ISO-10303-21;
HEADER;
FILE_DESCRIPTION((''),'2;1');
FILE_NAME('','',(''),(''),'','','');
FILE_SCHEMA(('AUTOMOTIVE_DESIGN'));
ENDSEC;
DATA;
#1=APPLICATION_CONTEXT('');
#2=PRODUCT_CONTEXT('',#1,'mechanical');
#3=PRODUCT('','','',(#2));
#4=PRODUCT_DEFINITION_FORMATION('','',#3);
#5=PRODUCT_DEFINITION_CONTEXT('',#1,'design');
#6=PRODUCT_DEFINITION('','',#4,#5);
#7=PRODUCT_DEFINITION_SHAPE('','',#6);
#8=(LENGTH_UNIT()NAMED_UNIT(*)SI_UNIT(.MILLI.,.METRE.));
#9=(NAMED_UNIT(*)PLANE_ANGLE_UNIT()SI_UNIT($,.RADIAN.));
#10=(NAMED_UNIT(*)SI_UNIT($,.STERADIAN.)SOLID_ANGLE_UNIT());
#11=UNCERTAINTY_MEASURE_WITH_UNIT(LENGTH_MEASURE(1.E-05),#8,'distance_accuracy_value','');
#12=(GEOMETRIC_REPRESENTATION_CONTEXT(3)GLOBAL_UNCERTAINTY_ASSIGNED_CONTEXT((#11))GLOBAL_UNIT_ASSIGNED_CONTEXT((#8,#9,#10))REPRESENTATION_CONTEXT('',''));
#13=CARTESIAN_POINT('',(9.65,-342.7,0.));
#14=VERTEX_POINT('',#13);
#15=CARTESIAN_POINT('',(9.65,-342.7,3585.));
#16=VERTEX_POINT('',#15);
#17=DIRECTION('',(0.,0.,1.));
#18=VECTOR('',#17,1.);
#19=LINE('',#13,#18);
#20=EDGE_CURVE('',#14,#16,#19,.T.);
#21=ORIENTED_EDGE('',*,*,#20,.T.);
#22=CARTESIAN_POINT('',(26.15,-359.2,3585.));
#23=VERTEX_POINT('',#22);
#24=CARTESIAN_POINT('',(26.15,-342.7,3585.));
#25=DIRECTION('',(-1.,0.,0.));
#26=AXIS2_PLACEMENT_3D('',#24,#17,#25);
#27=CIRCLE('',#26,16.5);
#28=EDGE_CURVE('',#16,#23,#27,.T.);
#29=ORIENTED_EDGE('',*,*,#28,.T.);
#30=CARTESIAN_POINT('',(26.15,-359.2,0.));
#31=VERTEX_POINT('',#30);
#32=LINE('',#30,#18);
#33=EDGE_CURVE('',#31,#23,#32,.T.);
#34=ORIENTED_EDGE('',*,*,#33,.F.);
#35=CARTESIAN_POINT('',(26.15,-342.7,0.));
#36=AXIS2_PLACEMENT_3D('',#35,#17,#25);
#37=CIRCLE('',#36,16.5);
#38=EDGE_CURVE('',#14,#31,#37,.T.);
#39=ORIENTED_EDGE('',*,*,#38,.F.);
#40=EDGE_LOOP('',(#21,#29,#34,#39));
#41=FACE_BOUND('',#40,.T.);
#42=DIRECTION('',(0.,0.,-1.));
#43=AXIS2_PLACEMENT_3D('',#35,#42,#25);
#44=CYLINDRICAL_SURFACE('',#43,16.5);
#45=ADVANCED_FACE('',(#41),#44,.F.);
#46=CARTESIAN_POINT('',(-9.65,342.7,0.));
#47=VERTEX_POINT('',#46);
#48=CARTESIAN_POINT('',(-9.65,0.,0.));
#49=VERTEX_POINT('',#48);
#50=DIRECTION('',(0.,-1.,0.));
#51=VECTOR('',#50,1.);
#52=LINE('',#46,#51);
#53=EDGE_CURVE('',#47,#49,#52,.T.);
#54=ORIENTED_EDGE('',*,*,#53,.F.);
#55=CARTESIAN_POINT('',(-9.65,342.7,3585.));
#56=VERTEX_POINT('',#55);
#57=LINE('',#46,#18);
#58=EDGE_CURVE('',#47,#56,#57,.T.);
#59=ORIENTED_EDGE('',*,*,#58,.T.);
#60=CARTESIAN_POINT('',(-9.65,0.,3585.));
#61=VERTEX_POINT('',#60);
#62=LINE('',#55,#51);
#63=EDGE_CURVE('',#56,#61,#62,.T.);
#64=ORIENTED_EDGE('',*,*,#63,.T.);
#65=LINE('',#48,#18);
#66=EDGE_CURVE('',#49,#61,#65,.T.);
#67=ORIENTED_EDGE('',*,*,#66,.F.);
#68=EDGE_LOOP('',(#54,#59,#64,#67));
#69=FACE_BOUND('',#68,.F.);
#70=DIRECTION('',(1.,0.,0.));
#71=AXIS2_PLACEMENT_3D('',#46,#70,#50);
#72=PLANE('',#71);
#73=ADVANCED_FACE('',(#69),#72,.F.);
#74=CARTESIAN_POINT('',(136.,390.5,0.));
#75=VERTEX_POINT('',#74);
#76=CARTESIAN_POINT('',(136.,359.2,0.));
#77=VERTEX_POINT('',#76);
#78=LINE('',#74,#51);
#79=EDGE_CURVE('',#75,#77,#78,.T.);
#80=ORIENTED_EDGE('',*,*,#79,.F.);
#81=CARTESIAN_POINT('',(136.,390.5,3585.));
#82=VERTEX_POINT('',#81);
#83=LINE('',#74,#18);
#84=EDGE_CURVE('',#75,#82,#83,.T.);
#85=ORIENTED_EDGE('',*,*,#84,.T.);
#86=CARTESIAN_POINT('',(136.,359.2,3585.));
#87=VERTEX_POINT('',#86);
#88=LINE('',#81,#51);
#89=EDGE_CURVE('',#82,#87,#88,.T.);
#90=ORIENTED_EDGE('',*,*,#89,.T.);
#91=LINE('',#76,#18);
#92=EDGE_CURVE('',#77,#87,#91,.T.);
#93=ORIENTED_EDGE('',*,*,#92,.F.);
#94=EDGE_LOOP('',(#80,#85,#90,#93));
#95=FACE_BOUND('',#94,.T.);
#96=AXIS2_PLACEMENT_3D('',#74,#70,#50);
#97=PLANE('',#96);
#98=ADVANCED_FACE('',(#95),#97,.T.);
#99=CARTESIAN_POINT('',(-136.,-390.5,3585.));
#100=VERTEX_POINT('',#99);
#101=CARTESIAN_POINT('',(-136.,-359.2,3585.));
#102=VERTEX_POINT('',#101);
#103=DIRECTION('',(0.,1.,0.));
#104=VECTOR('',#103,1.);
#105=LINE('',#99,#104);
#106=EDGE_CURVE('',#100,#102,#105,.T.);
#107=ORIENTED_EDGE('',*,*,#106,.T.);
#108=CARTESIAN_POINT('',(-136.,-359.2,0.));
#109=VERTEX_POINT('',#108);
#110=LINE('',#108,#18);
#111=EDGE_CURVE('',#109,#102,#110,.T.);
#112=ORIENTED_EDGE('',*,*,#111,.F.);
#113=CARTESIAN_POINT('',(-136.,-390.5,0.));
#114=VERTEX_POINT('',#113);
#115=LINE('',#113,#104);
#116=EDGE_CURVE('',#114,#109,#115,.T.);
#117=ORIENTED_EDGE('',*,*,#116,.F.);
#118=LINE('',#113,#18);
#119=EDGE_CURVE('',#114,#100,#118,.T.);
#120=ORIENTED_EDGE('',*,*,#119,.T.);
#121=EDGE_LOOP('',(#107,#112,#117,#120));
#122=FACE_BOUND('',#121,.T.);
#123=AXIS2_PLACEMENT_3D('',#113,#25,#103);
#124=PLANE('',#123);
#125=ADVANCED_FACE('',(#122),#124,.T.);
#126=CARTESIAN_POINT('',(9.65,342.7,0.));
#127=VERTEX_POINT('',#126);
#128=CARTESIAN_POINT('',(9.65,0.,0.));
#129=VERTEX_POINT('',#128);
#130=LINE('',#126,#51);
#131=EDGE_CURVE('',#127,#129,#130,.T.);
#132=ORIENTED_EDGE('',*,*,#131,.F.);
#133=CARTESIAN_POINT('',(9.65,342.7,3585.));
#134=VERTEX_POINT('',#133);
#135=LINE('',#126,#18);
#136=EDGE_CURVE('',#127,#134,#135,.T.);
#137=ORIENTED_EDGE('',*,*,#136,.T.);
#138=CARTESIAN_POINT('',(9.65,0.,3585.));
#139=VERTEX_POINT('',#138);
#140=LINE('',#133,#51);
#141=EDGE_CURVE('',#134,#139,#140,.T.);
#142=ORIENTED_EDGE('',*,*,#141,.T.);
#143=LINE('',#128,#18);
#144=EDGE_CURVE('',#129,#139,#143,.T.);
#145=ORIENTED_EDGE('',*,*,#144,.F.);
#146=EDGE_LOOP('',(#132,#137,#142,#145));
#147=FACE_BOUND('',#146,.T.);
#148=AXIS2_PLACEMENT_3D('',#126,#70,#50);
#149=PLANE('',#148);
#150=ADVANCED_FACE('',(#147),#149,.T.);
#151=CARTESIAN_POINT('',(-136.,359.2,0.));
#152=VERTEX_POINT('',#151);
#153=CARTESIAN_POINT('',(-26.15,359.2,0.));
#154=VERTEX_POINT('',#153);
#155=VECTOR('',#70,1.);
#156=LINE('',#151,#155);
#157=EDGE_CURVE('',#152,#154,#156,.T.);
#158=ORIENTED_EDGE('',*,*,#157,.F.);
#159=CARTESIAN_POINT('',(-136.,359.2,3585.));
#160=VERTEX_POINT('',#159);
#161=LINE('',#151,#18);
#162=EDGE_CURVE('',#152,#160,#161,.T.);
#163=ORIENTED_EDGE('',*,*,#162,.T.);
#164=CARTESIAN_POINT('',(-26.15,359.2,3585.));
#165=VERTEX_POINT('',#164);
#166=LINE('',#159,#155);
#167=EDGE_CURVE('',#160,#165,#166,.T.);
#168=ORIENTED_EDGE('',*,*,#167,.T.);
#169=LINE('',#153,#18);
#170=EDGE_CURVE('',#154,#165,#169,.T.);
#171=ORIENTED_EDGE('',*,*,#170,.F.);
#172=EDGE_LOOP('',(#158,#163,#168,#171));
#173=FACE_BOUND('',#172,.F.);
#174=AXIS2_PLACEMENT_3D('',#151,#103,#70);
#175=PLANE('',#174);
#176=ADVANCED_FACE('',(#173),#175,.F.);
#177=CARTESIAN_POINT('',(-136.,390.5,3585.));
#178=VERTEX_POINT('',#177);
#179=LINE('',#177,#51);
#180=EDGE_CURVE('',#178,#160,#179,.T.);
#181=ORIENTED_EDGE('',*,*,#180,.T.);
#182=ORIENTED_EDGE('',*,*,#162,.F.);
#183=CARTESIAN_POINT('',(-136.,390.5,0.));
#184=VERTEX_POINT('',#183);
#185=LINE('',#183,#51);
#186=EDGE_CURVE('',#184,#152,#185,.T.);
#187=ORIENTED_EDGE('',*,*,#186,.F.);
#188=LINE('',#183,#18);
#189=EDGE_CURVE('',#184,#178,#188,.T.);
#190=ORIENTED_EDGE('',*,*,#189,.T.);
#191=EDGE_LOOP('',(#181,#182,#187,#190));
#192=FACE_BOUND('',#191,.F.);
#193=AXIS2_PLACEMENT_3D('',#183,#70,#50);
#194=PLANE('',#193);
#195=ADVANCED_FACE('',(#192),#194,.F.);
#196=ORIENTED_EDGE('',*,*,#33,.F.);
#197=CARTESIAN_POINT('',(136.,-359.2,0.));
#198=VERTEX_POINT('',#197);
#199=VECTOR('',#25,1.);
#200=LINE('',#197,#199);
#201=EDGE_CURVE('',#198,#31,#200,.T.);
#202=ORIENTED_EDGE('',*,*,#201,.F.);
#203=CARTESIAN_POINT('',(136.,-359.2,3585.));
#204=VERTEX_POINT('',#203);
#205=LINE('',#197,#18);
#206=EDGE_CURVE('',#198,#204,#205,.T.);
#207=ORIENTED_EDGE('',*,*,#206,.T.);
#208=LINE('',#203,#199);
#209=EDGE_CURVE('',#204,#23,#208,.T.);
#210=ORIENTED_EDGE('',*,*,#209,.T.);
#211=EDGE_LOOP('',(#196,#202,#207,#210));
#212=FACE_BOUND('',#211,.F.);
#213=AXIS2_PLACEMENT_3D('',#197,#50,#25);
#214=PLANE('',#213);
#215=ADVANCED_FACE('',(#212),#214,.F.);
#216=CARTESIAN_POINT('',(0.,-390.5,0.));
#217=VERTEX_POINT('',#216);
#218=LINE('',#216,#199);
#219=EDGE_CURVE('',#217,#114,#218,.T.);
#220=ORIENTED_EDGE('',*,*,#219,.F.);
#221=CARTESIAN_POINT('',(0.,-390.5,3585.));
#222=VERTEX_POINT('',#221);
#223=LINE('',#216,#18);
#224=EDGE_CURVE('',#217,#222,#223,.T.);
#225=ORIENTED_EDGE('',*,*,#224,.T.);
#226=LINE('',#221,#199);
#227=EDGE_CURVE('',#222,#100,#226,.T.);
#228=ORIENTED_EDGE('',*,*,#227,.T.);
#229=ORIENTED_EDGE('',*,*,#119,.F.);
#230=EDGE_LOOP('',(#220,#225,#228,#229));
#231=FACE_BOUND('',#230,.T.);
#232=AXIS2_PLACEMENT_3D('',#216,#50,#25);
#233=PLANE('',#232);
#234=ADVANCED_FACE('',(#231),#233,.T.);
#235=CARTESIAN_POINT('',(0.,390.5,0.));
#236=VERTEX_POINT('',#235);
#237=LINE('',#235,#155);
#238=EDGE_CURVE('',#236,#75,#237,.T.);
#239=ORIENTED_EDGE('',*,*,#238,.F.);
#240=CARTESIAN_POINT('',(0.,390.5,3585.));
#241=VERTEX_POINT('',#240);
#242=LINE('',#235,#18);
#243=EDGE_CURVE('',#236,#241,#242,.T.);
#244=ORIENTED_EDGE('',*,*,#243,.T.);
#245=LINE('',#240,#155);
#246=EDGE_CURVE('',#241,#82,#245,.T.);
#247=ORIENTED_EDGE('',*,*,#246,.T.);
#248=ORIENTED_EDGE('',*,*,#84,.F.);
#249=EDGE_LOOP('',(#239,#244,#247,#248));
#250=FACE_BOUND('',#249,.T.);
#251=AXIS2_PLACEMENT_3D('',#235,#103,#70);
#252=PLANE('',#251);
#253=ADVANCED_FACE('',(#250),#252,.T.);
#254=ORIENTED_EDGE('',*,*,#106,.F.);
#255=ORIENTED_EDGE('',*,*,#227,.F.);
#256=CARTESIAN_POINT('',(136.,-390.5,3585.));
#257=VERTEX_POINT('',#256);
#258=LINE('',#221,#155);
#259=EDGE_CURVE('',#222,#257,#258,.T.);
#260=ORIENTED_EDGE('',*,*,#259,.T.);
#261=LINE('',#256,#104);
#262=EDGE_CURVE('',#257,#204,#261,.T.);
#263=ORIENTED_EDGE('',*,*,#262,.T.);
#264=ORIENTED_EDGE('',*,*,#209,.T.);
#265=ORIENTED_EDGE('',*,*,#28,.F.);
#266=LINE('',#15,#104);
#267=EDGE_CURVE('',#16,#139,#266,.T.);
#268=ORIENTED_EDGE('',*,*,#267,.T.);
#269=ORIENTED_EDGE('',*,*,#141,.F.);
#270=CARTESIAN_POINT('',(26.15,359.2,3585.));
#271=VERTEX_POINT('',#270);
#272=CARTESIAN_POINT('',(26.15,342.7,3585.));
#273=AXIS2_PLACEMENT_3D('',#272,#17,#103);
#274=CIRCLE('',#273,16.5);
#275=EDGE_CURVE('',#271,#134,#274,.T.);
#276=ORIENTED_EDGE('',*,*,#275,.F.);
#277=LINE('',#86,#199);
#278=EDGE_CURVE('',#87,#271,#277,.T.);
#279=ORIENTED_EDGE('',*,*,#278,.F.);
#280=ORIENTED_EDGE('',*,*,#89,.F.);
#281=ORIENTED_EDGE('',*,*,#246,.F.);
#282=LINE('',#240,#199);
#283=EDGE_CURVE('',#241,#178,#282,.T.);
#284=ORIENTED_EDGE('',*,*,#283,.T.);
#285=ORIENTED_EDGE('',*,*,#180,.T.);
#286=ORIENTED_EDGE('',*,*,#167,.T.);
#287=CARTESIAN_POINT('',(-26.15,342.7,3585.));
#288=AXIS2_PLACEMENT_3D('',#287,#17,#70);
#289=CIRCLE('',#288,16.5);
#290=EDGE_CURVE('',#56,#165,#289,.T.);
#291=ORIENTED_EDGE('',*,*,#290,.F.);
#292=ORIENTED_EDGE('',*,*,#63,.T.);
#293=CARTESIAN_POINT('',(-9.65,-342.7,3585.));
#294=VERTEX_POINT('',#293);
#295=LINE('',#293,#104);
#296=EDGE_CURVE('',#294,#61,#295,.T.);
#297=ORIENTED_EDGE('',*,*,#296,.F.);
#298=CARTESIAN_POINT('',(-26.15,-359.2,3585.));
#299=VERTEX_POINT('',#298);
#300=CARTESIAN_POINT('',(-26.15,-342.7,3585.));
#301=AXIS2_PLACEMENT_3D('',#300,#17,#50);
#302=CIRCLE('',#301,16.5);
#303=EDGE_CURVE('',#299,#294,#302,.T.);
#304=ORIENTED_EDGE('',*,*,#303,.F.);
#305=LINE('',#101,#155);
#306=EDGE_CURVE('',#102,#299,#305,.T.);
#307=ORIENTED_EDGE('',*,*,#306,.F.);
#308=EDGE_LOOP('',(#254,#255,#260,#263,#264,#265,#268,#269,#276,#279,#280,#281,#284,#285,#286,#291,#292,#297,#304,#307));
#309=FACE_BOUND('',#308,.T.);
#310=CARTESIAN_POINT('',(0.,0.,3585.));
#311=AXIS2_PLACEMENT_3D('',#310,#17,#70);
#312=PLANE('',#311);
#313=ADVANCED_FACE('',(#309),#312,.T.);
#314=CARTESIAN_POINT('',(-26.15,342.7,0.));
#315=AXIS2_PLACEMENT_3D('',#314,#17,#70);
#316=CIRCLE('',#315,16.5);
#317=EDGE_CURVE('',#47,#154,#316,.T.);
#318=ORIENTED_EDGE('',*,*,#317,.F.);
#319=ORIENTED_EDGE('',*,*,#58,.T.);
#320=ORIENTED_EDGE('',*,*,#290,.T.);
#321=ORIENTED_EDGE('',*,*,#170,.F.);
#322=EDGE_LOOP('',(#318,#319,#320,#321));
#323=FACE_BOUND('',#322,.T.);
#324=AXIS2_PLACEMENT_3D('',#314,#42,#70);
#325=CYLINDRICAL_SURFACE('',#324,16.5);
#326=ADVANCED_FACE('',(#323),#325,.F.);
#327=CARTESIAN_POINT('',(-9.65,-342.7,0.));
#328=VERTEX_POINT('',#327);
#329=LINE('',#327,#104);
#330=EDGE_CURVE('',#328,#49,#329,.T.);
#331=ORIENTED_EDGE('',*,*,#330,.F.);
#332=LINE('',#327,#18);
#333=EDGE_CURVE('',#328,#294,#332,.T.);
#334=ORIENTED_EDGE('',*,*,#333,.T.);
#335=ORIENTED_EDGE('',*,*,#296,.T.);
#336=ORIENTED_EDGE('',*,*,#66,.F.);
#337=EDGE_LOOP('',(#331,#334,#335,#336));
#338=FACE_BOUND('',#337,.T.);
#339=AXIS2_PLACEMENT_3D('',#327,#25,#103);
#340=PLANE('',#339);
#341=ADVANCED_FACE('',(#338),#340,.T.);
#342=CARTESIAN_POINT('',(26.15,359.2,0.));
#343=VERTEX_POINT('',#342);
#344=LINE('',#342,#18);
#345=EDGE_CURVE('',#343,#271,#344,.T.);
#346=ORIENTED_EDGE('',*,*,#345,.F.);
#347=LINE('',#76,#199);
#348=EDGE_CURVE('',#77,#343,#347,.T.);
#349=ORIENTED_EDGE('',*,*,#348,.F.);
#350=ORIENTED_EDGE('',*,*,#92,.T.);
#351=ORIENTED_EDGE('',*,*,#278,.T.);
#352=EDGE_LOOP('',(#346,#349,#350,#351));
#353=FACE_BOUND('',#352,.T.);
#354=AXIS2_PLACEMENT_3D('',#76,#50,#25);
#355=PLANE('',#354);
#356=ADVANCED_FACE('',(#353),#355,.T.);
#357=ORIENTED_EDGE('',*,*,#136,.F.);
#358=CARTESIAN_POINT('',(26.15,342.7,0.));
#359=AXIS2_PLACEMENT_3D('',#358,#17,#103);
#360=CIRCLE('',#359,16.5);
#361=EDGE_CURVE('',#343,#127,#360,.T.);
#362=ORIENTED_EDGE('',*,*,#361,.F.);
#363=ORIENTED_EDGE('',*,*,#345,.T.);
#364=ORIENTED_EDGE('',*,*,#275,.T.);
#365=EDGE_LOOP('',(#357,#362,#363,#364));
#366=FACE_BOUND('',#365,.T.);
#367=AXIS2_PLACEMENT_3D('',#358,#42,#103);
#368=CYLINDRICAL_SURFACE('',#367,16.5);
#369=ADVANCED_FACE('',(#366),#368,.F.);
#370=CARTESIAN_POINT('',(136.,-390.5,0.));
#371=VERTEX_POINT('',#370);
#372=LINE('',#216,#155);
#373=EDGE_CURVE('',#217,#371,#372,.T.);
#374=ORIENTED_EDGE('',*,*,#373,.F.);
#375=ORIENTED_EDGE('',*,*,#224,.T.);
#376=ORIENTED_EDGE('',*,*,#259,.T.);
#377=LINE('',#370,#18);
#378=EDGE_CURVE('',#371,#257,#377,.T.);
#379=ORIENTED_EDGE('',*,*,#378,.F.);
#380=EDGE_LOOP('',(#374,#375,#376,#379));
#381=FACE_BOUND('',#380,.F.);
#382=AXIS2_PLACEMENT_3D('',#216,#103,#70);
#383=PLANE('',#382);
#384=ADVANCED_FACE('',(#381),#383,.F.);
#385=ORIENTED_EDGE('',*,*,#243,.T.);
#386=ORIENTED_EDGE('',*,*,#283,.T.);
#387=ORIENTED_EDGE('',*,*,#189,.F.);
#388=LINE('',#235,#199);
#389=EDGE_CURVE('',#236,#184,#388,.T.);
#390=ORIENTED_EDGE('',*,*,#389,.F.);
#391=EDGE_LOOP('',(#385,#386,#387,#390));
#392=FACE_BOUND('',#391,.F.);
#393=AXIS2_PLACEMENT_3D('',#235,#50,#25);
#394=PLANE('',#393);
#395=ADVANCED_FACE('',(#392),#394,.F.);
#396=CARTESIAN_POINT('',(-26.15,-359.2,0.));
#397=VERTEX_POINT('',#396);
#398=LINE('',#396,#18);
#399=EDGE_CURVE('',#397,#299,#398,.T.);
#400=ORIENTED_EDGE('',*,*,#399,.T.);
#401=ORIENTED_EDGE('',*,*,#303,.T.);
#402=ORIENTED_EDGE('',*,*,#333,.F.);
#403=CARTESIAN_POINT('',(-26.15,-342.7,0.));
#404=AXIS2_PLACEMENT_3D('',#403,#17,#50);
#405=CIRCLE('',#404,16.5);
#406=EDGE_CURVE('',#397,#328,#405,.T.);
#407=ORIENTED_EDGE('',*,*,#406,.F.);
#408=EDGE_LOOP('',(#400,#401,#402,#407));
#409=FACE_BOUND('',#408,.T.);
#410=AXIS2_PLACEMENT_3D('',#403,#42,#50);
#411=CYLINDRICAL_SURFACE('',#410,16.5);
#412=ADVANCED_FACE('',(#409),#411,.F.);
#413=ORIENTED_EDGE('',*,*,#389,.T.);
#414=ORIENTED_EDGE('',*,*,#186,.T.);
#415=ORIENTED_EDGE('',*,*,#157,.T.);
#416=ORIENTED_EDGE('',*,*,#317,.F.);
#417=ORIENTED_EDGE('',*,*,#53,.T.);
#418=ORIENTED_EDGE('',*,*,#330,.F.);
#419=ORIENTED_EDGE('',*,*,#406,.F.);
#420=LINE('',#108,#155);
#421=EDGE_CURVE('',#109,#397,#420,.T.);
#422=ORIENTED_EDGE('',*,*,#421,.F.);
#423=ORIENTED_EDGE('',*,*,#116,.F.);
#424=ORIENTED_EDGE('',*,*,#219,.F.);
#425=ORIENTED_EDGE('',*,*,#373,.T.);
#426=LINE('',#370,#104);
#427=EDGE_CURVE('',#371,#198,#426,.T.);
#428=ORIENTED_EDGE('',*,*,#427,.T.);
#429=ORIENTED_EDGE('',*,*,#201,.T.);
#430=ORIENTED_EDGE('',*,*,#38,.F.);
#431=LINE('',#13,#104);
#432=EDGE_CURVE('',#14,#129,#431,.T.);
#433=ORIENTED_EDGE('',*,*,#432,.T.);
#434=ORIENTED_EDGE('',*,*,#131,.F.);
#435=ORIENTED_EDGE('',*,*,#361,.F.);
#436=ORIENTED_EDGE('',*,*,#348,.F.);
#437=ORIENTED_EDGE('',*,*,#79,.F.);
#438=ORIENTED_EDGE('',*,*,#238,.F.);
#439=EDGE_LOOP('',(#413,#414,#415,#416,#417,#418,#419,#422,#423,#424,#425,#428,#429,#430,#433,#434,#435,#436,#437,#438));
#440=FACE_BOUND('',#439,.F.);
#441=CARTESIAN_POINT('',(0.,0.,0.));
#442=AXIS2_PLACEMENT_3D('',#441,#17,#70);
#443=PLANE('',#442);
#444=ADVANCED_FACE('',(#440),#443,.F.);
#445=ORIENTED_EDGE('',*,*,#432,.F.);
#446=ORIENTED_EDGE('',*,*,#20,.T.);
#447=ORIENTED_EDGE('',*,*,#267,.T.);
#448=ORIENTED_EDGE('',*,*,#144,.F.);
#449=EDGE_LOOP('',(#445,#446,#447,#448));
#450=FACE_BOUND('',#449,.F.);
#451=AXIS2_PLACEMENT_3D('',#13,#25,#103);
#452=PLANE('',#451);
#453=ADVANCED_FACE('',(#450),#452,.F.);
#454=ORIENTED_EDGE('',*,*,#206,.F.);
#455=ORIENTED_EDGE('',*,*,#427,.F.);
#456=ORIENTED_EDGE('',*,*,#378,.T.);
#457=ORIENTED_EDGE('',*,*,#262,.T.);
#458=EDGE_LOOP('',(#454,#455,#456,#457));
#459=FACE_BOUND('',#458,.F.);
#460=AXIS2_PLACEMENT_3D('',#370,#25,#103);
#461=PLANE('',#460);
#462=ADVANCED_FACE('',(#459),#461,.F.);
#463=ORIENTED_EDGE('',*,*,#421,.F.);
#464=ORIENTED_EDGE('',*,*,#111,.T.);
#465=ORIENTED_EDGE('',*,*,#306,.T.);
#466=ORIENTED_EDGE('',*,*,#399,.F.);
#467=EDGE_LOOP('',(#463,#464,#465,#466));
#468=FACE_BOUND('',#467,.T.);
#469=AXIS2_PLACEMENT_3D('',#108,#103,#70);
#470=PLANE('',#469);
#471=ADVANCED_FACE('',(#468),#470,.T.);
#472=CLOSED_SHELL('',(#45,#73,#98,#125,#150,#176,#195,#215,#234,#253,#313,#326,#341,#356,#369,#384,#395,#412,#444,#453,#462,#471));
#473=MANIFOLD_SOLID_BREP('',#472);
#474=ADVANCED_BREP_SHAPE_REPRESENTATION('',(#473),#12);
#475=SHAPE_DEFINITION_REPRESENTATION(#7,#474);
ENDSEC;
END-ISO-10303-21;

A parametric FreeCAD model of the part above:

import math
import FreeCAD as App
import Part
import Sketcher

doc = App.newDocument("Part")
body = doc.addObject("PartDesign::Body", "Body")

sketch1 = body.newObject("Sketcher::SketchObject", "Sketch")
sketch1.AttachmentSupport = (doc.getObject("XY_Plane"), [""])
sketch1.MapMode = "FlatFace"
sketch1.addGeometry(Part.LineSegment(App.Vector(-136, -359, 0), App.Vector(-136, -390, 0)), False)
sketch1.addGeometry(Part.LineSegment(App.Vector(-136, -390, 0), App.Vector(136, -390, 0)), False)
sketch1.addGeometry(Part.LineSegment(App.Vector(136, -390, 0), App.Vector(136, -359, 0)), False)
sketch1.addGeometry(Part.LineSegment(App.Vector(136, -359, 0), App.Vector(26, -359, 0)), False)
sketch1.addGeometry(Part.ArcOfCircle(Part.Circle(App.Vector(26, -343, 0), App.Vector(0, 0, 1), 16), math.radians(180), math.radians(270)), False)
sketch1.addGeometry(Part.LineSegment(App.Vector(10, -343, 0), App.Vector(10, 343, 0)), False)
sketch1.addGeometry(Part.ArcOfCircle(Part.Circle(App.Vector(26, 343, 0), App.Vector(0, 0, 1), 16), math.radians(90), math.radians(180)), False)
sketch1.addGeometry(Part.LineSegment(App.Vector(26, 359, 0), App.Vector(136, 359, 0)), False)
sketch1.addGeometry(Part.LineSegment(App.Vector(136, 359, 0), App.Vector(136, 390, 0)), False)
sketch1.addGeometry(Part.LineSegment(App.Vector(136, 390, 0), App.Vector(-136, 390, 0)), False)
sketch1.addGeometry(Part.LineSegment(App.Vector(-136, 390, 0), App.Vector(-136, 359, 0)), False)
sketch1.addGeometry(Part.LineSegment(App.Vector(-136, 359, 0), App.Vector(-26, 359, 0)), False)
sketch1.addGeometry(Part.ArcOfCircle(Part.Circle(App.Vector(-26, 343, 0), App.Vector(0, 0, 1), 16), math.radians(0), math.radians(90)), False)
sketch1.addGeometry(Part.LineSegment(App.Vector(-10, 343, 0), App.Vector(-10, -343, 0)), False)
sketch1.addGeometry(Part.ArcOfCircle(Part.Circle(App.Vector(-26, -343, 0), App.Vector(0, 0, 1), 16), math.radians(-90), math.radians(0)), False)
sketch1.addGeometry(Part.LineSegment(App.Vector(-26, -359, 0), App.Vector(-136, -359, 0)), False)
sketch1.addConstraint(Sketcher.Constraint("Coincident", 0, 2, 1, 1))
sketch1.addConstraint(Sketcher.Constraint("Coincident", 1, 2, 2, 1))
sketch1.addConstraint(Sketcher.Constraint("Coincident", 2, 2, 3, 1))
sketch1.addConstraint(Sketcher.Constraint("Tangent", 3, 2, 4, 2))
sketch1.addConstraint(Sketcher.Constraint("Tangent", 4, 1, 5, 1))
sketch1.addConstraint(Sketcher.Constraint("Tangent", 5, 2, 6, 2))
sketch1.addConstraint(Sketcher.Constraint("Tangent", 6, 1, 7, 1))
sketch1.addConstraint(Sketcher.Constraint("Coincident", 7, 2, 8, 1))
sketch1.addConstraint(Sketcher.Constraint("Coincident", 8, 2, 9, 1))
sketch1.addConstraint(Sketcher.Constraint("Coincident", 9, 2, 10, 1))
sketch1.addConstraint(Sketcher.Constraint("Coincident", 10, 2, 11, 1))
sketch1.addConstraint(Sketcher.Constraint("Tangent", 11, 2, 12, 2))
sketch1.addConstraint(Sketcher.Constraint("Tangent", 12, 1, 13, 1))
sketch1.addConstraint(Sketcher.Constraint("Tangent", 13, 2, 14, 2))
sketch1.addConstraint(Sketcher.Constraint("Tangent", 14, 1, 15, 1))
sketch1.addConstraint(Sketcher.Constraint("Coincident", 15, 2, 0, 1))
sketch1.addConstraint(Sketcher.Constraint("Vertical", 0))
sketch1.addConstraint(Sketcher.Constraint("Horizontal", 1))
sketch1.addConstraint(Sketcher.Constraint("Vertical", 2))
sketch1.addConstraint(Sketcher.Constraint("Horizontal", 3))
sketch1.addConstraint(Sketcher.Constraint("Vertical", 5))
sketch1.addConstraint(Sketcher.Constraint("Horizontal", 7))
sketch1.addConstraint(Sketcher.Constraint("Vertical", 8))
sketch1.addConstraint(Sketcher.Constraint("Horizontal", 9))
sketch1.addConstraint(Sketcher.Constraint("Vertical", 10))
sketch1.addConstraint(Sketcher.Constraint("Horizontal", 11))
sketch1.addConstraint(Sketcher.Constraint("Vertical", 13))
sketch1.addConstraint(Sketcher.Constraint("Horizontal", 15))
sketch1.addConstraint(Sketcher.Constraint("Equal", 4, 6))
sketch1.addConstraint(Sketcher.Constraint("Equal", 6, 12))
sketch1.addConstraint(Sketcher.Constraint("Equal", 12, 14))
sketch1.addConstraint(Sketcher.Constraint("Symmetric", 4, 3, 12, 3, -1, 1))
sketch1.addConstraint(Sketcher.Constraint("Symmetric", 0, 2, 8, 2, -1, 1))
sketch1.addConstraint(Sketcher.Constraint("Symmetric", 7, 2, 10, 2, -2))
sketch1.addConstraint(Sketcher.Constraint("Symmetric", 2, 2, 15, 2, -2))
sketch1.addConstraint(Sketcher.Constraint("Radius", 4, 16.5))
sketch1.addConstraint(Sketcher.Constraint("DistanceY", 0, 2, 0, 1, 31.3))
sketch1.addConstraint(Sketcher.Constraint("DistanceX", 0, 2, -1, 1, 136.0))
sketch1.addConstraint(Sketcher.Constraint("DistanceY", 0, 2, -1, 1, 390.5))
sketch1.addConstraint(Sketcher.Constraint("DistanceX", -1, 1, 4, 1, 9.65))
pad1 = body.newObject("PartDesign::Pad", "Pad")
pad1.Profile = sketch1
pad1.Length = 3585

doc.recompute()
